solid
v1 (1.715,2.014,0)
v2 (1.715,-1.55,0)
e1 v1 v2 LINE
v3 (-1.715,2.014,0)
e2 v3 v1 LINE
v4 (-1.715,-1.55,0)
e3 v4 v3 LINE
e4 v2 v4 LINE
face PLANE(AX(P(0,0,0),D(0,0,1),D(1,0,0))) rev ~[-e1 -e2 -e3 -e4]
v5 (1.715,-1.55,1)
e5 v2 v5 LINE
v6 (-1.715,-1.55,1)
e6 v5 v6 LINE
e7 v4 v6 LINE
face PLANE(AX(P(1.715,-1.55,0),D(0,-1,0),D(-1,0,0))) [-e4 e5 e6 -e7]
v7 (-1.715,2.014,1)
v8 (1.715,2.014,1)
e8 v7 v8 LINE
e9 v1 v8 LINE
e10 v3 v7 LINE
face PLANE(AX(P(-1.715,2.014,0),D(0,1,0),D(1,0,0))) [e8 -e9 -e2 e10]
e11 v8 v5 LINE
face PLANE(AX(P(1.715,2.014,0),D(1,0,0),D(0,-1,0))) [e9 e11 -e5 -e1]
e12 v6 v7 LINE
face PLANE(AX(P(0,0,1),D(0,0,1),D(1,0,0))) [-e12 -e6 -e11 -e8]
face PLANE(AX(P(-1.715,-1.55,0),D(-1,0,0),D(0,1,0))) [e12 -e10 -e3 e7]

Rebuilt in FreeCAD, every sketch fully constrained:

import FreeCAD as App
import Part
import Sketcher
Q = App.Units.Quantity


def add_polygon(sketch, points):
    """Adds a closed chain of lines whose ends are joined by coincident constraints."""
    first, n = sketch.GeometryCount, len(points)
    for a, b in zip(points, points[1:] + points[:1]):
        sketch.addGeometry(Part.LineSegment(App.Vector(*a, 0), App.Vector(*b, 0)), False)
    for i in range(n):
        sketch.addConstraint(Sketcher.Constraint("Coincident", first + i, 2, first + (i + 1) % n, 1))

doc = App.newDocument("Part")
body = doc.addObject("PartDesign::Body", "Body")

# Sketch on XY plane
sketch1 = body.newObject("Sketcher::SketchObject", "Sketch")
sketch1.AttachmentSupport = (doc.getObject("XY_Plane"), [""])
sketch1.MapMode = "FlatFace"
add_polygon(sketch1, [(-1.7, 2), (-1.7, -1.6), (1.7, -1.6), (1.7, 2)])  # lines 0-3
sketch1.addConstraint(Sketcher.Constraint("Vertical", 0))
sketch1.addConstraint(Sketcher.Constraint("Horizontal", 1))
sketch1.addConstraint(Sketcher.Constraint("Vertical", 2))
sketch1.addConstraint(Sketcher.Constraint("Horizontal", 3))
sketch1.addConstraint(Sketcher.Constraint("DistanceX", 1, 1, 1, 2, Q("3.43 mm")))
sketch1.addConstraint(Sketcher.Constraint("DistanceY", 0, 2, 0, 1, Q("3.564 mm")))
sketch1.addConstraint(Sketcher.Constraint("DistanceY", 0, 2, -1, 1, Q("1.55 mm")))
sketch1.addConstraint(Sketcher.Constraint("DistanceX", 0, 2, -1, 1, Q("1.715 mm")))
pad1 = body.newObject("PartDesign::Pad", "Pad")
pad1.Profile = sketch1
pad1.Length = 1

doc.recompute()
